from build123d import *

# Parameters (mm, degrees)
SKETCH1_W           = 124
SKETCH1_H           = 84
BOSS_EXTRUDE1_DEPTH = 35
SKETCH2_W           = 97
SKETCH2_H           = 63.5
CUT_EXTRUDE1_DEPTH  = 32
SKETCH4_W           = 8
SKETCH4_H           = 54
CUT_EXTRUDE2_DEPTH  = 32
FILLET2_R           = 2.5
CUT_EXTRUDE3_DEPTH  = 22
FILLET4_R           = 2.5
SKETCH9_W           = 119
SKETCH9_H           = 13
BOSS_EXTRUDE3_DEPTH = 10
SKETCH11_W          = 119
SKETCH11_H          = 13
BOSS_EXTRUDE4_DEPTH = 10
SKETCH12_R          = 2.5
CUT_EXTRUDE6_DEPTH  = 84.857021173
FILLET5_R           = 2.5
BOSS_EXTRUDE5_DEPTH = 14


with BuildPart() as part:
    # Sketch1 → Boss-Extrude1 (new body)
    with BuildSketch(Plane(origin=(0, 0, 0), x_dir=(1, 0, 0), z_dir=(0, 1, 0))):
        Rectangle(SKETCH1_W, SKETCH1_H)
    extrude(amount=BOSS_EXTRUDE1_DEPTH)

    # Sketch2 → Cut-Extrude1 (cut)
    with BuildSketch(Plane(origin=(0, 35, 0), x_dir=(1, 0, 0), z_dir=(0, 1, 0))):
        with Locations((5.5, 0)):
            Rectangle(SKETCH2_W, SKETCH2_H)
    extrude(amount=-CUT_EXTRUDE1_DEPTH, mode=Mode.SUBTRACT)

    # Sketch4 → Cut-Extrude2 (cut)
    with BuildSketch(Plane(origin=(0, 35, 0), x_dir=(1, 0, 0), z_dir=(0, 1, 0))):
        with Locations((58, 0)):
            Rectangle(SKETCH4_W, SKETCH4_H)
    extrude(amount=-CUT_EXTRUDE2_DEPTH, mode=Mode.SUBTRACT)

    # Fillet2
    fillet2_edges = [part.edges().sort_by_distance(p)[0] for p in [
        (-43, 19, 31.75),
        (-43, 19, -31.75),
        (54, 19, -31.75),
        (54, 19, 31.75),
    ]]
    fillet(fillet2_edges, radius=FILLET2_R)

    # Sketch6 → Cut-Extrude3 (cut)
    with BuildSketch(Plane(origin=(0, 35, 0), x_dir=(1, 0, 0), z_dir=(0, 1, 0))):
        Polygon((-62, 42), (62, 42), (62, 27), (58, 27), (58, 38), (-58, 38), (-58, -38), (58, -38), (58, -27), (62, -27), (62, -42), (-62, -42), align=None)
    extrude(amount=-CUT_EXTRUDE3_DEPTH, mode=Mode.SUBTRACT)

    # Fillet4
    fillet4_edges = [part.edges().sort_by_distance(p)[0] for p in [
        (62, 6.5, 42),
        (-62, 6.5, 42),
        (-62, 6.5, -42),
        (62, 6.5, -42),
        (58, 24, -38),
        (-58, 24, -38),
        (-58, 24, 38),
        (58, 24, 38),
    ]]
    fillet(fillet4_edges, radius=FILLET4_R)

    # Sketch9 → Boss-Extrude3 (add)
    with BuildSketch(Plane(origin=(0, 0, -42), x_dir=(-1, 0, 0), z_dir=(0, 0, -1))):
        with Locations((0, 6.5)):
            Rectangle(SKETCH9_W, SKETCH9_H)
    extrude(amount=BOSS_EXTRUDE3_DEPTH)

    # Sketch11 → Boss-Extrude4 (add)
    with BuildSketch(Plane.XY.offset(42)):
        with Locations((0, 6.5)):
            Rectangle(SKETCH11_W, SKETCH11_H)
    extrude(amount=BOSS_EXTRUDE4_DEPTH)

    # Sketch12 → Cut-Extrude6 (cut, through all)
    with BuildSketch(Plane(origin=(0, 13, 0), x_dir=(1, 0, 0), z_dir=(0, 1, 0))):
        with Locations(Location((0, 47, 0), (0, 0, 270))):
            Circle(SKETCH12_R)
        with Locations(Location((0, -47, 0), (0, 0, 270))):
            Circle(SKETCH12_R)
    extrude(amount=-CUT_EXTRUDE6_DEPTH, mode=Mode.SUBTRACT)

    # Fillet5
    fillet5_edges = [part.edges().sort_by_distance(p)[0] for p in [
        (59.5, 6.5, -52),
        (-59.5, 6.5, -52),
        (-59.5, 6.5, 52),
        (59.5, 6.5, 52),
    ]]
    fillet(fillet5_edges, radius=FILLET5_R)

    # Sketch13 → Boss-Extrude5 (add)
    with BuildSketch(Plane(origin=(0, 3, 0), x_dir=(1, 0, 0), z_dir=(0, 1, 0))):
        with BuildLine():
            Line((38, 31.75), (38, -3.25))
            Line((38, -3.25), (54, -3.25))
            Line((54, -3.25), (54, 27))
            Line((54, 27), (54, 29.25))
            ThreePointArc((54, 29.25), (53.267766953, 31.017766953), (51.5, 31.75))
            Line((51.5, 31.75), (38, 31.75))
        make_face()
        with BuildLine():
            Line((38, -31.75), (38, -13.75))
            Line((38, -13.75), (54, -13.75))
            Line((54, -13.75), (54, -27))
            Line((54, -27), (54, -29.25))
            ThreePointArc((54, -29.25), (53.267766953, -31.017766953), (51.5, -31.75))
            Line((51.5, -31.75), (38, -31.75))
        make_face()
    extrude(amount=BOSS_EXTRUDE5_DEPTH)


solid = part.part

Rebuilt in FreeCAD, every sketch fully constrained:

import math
import FreeCAD as App
import Part
import Sketcher

V = App.Vector


def edges_at(feature, points):
    """Names of the edges that pass closest to the given points."""
    edges = feature.Shape.Edges
    near = lambda p: min(range(len(edges)), key=lambda i: edges[i].distToShape(Part.Vertex(*p))[0])
    return sorted({f"Edge{near(p) + 1}" for p in points})


def add_polygon(sketch, points):
    """Adds a closed chain of lines whose ends are joined by coincident constraints."""
    first, n = sketch.GeometryCount, len(points)
    for a, b in zip(points, points[1:] + points[:1]):
        sketch.addGeometry(Part.LineSegment(App.Vector(*a, 0), App.Vector(*b, 0)), False)
    for i in range(n):
        sketch.addConstraint(Sketcher.Constraint("Coincident", first + i, 2, first + (i + 1) % n, 1))

doc = App.newDocument("Part")
params = doc.addObject("Spreadsheet::Sheet", "Params")
for row, (alias, value) in enumerate([
    ("sketch1_width", "124 mm"),
    ("sketch1_height", "84 mm"),
    ("pad1_length", "35 mm"),
    ("sketch2_width", "97 mm"),
    ("sketch2_height", "63.5 mm"),
    ("pocket1_length", "32 mm"),
    ("sketch3_width", "8 mm"),
    ("sketch3_height", "54 mm"),
    ("pocket2_length", "32 mm"),
    ("fillet_radius", "2.5 mm"),
    ("sketch4_width", "124 mm"),
    ("sketch4_width2", "4 mm"),
    ("sketch4_height", "84 mm"),
    ("sketch4_height2", "15 mm"),
    ("sketch4_height3", "11 mm"),
    ("pocket3_length", "22 mm"),
    ("fillet2_radius", "2.5 mm"),
    ("sketch5_width", "119 mm"),
    ("sketch5_height", "13 mm"),
    ("pad2_length", "10 mm"),
    ("sketch6_width", "119 mm"),
    ("sketch6_height", "13 mm"),
    ("pad3_length", "10 mm"),
    ("sketch7_diameter", "5 mm"),
    ("fillet3_radius", "2.5 mm"),
    ("sketch8_radius", "2.5 mm"),
    ("sketch8_width", "16 mm"),
    ("sketch8_height", "35 mm"),
    ("sketch8_height2", "18 mm"),
    ("pad4_length", "14 mm"),
], start=1):
    params.set(f"A{row}", alias)
    params.set(f"B{row}", "=" + value)
    params.setAlias(f"B{row}", alias)

body = doc.addObject("PartDesign::Body", "Body")

# Sketch on XZ plane
sketch1 = doc.addObject("Sketcher::SketchObject", "Sketch")
body.addObject(sketch1)
sketch1.AttachmentSupport = (doc.XZ_Plane, [""])
sketch1.MapMode = "FlatFace"
add_polygon(sketch1, [(-62, -42), (-62, 42), (62, 42), (62, -42)])  # lines 0-3
sketch1.addConstraint([
    Sketcher.Constraint("Vertical", 0),
    Sketcher.Constraint("Horizontal", 1),
    Sketcher.Constraint("Vertical", 2),
    Sketcher.Constraint("Horizontal", 3),
    Sketcher.Constraint("Symmetric", 0, 2, 2, 2, -1, 1),
    Sketcher.Constraint("DistanceX", 1, 1, 1, 2, 124.0),
    Sketcher.Constraint("DistanceY", 0, 1, 0, 2, 84.0),
])
sketch1.setExpression("Constraints[9]", "Params.sketch1_width")
sketch1.setExpression("Constraints[10]", "Params.sketch1_height")
pad1 = doc.addObject("PartDesign::Pad", "Pad")
body.addObject(pad1)
pad1.Profile = sketch1
pad1.setExpression("Length", "Params.pad1_length")
pad1.Reversed = True

# Sketch on XZ plane
sketch2 = doc.addObject("Sketcher::SketchObject", "Sketch001")
body.addObject(sketch2)
sketch2.AttachmentSupport = (doc.XZ_Plane, [""])
sketch2.MapMode = "FlatFace"
sketch2.AttachmentOffset = App.Placement(V(0, 0, -35), App.Rotation())
add_polygon(sketch2, [(-43, -31.75), (-43, 31.75), (54, 31.75), (54, -31.75)])  # lines 0-3
sketch2.addConstraint([
    Sketcher.Constraint("Vertical", 0),
    Sketcher.Constraint("Horizontal", 1),
    Sketcher.Constraint("Vertical", 2),
    Sketcher.Constraint("Horizontal", 3),
    Sketcher.Constraint("DistanceX", 1, 1, 1, 2, 97.0),
    Sketcher.Constraint("DistanceY", 0, 1, 0, 2, 63.5),
    Sketcher.Constraint("DistanceX", 0, 2, -1, 1, 43.0),
    Sketcher.Constraint("DistanceY", -1, 1, 0, 2, 31.75),
])
sketch2.setExpression("Constraints[8]", "Params.sketch2_width")
sketch2.setExpression("Constraints[9]", "Params.sketch2_height")
pocket1 = doc.addObject("PartDesign::Pocket", "Pocket")
body.addObject(pocket1)
pocket1.Profile = sketch2
pocket1.setExpression("Length", "Params.pocket1_length")
pocket1.Reversed = True

# Sketch on XZ plane
sketch3 = doc.addObject("Sketcher::SketchObject", "Sketch002")
body.addObject(sketch3)
sketch3.AttachmentSupport = (doc.XZ_Plane, [""])
sketch3.MapMode = "FlatFace"
sketch3.AttachmentOffset = App.Placement(V(0, 0, -35), App.Rotation())
add_polygon(sketch3, [(54, -27), (54, 27), (62, 27), (62, -27)])  # lines 0-3
sketch3.addConstraint([
    Sketcher.Constraint("Vertical", 0),
    Sketcher.Constraint("Horizontal", 1),
    Sketcher.Constraint("Vertical", 2),
    Sketcher.Constraint("Horizontal", 3),
    Sketcher.Constraint("DistanceX", 1, 1, 1, 2, 8.0),
    Sketcher.Constraint("DistanceY", 0, 1, 0, 2, 54.0),
    Sketcher.Constraint("DistanceX", -1, 1, 0, 2, 54.0),
    Sketcher.Constraint("DistanceY", -1, 1, 0, 2, 27.0),
])
sketch3.setExpression("Constraints[8]", "Params.sketch3_width")
sketch3.setExpression("Constraints[9]", "Params.sketch3_height")
pocket2 = doc.addObject("PartDesign::Pocket", "Pocket001")
body.addObject(pocket2)
pocket2.Profile = sketch3
pocket2.setExpression("Length", "Params.pocket2_length")
pocket2.Reversed = True
doc.recompute()

fillet = doc.addObject("PartDesign::Fillet", "Fillet")
body.addObject(fillet)
fillet.Base = (pocket2, edges_at(pocket2, [
    (-43, 19, 31.75),
    (-43, 19, -31.75),
    (54, 19, -31.75),
    (54, 19, 31.75),
]))
fillet.setExpression("Radius", "Params.fillet_radius")

# Sketch on XZ plane
sketch4 = doc.addObject("Sketcher::SketchObject", "Sketch003")
body.addObject(sketch4)
sketch4.AttachmentSupport = (doc.XZ_Plane, [""])
sketch4.MapMode = "FlatFace"
sketch4.AttachmentOffset = App.Placement(V(0, 0, -35), App.Rotation())
add_polygon(sketch4, [(62, -42), (-62, -42), (-62, 42), (62, 42), (62, 27), (58, 27), (58, 38), (-58, 38), (-58, -38), (58, -38), (58, -27), (62, -27)])  # lines 0-11
sketch4.addConstraint([
    Sketcher.Constraint("Horizontal", 0),
    Sketcher.Constraint("Vertical", 1),
    Sketcher.Constraint("Horizontal", 2),
    Sketcher.Constraint("Vertical", 3),
    Sketcher.Constraint("Horizontal", 4),
    Sketcher.Constraint("Vertical", 5),
    Sketcher.Constraint("Horizontal", 6),
    Sketcher.Constraint("Vertical", 7),
    Sketcher.Constraint("Horizontal", 8),
    Sketcher.Constraint("Vertical", 9),
    Sketcher.Constraint("Horizontal", 10),
    Sketcher.Constraint("Vertical", 11),
    Sketcher.Constraint("Symmetric", 0, 2, 2, 2, -1, 1),
    Sketcher.Constraint("Symmetric", 5, 2, 7, 2, -1, 1),
    Sketcher.Constraint("Symmetric", 4, 2, 9, 2, -1),
    Sketcher.Constraint("Vertical", 3, 2, 10, 2),
    Sketcher.Constraint("DistanceX", 0, 2, 0, 1, 124.0),
    Sketcher.Constraint("DistanceX", 4, 2, 4, 1, 4.0),
    Sketcher.Constraint("DistanceY", 1, 1, 1, 2, 84.0),
    Sketcher.Constraint("DistanceY", 3, 2, 3, 1, 15.0),
    Sketcher.Constraint("DistanceY", 5, 1, 5, 2, 11.0),
])
sketch4.setExpression("Constraints[28]", "Params.sketch4_width")
sketch4.setExpression("Constraints[29]", "Params.sketch4_width2")
sketch4.setExpression("Constraints[30]", "Params.sketch4_height")
sketch4.setExpression("Constraints[31]", "Params.sketch4_height2")
sketch4.setExpression("Constraints[32]", "Params.sketch4_height3")
pocket3 = doc.addObject("PartDesign::Pocket", "Pocket002")
body.addObject(pocket3)
pocket3.Profile = sketch4
pocket3.setExpression("Length", "Params.pocket3_length")
pocket3.Reversed = True
doc.recompute()

fillet2 = doc.addObject("PartDesign::Fillet", "Fillet001")
body.addObject(fillet2)
fillet2.Base = (pocket3, edges_at(pocket3, [
    (62, 6.5, 42),
    (-62, 6.5, 42),
    (-62, 6.5, -42),
    (62, 6.5, -42),
    (58, 24, -38),
    (-58, 24, -38),
    (-58, 24, 38),
    (58, 24, 38),
]))
fillet2.setExpression("Radius", "Params.fillet2_radius")

# Sketch on XY plane
sketch5 = doc.addObject("Sketcher::SketchObject", "Sketch004")
body.addObject(sketch5)
sketch5.AttachmentSupport = (doc.XY_Plane, [""])
sketch5.MapMode = "FlatFace"
sketch5.AttachmentOffset = App.Placement(V(0, 0, -42), App.Rotation())
add_polygon(sketch5, [(59.5, 13), (59.5, 0), (-59.5, 0), (-59.5, 13)])  # lines 0-3
sketch5.addConstraint([
    Sketcher.Constraint("Vertical", 0),
    Sketcher.Constraint("Horizontal", 1),
    Sketcher.Constraint("Vertical", 2),
    Sketcher.Constraint("Horizontal", 3),
    Sketcher.Constraint("Symmetric", 0, 2, 1, 2, -1, 1),
    Sketcher.Constraint("DistanceX", 1, 2, 1, 1, 119.0),
    Sketcher.Constraint("DistanceY", 0, 2, 0, 1, 13.0),
])
sketch5.setExpression("Constraints[9]", "Params.sketch5_width")
sketch5.setExpression("Constraints[10]", "Params.sketch5_height")
pad2 = doc.addObject("PartDesign::Pad", "Pad001")
body.addObject(pad2)
pad2.Profile = sketch5
pad2.setExpression("Length", "Params.pad2_length")
pad2.Reversed = True

# Sketch on XY plane
sketch6 = doc.addObject("Sketcher::SketchObject", "Sketch005")
body.addObject(sketch6)
sketch6.AttachmentSupport = (doc.XY_Plane, [""])
sketch6.MapMode = "FlatFace"
sketch6.AttachmentOffset = App.Placement(V(0, 0, 42), App.Rotation())
add_polygon(sketch6, [(-59.5, 13), (-59.5, 0), (59.5, 0), (59.5, 13)])  # lines 0-3
sketch6.addConstraint([
    Sketcher.Constraint("Vertical", 0),
    Sketcher.Constraint("Horizontal", 1),
    Sketcher.Constraint("Vertical", 2),
    Sketcher.Constraint("Horizontal", 3),
    Sketcher.Constraint("Symmetric", 0, 2, 1, 2, -1, 1),
    Sketcher.Constraint("DistanceX", 1, 1, 1, 2, 119.0),
    Sketcher.Constraint("DistanceY", 0, 2, 0, 1, 13.0),
])
sketch6.setExpression("Constraints[9]", "Params.sketch6_width")
sketch6.setExpression("Constraints[10]", "Params.sketch6_height")
pad3 = doc.addObject("PartDesign::Pad", "Pad002")
body.addObject(pad3)
pad3.Profile = sketch6
pad3.setExpression("Length", "Params.pad3_length")

# Sketch on XZ plane
sketch7 = doc.addObject("Sketcher::SketchObject", "Sketch006")
body.addObject(sketch7)
sketch7.AttachmentSupport = (doc.XZ_Plane, [""])
sketch7.MapMode = "FlatFace"
sketch7.AttachmentOffset = App.Placement(V(0, 0, -13), App.Rotation())
sketch7.addGeometry([
    Part.Circle(V(0, -47, 0), V(0, 0, 1), 2.5),
    Part.Circle(V(0, 47, 0), V(0, 0, 1), 2.5),
], False)
sketch7.addConstraint([
    Sketcher.Constraint("Equal", 0, 1),
    Sketcher.Constraint("Symmetric", 0, 3, 1, 3, -1, 1),
    Sketcher.Constraint("PointOnObject", 0, 3, -2),
    Sketcher.Constraint("Diameter", 0, 5.0),
    Sketcher.Constraint("DistanceY", 0, 3, -1, 1, 47.0),
])
sketch7.setExpression("Constraints[3]", "Params.sketch7_diameter")
pocket4 = doc.addObject("PartDesign::Pocket", "Pocket003")
body.addObject(pocket4)
pocket4.Profile = sketch7
pocket4.Type = "ThroughAll"
pocket4.Reversed = True
doc.recompute()

fillet3 = doc.addObject("PartDesign::Fillet", "Fillet002")
body.addObject(fillet3)
fillet3.Base = (pocket4, edges_at(pocket4, [
    (59.5, 6.5, -52),
    (-59.5, 6.5, -52),
    (-59.5, 6.5, 52),
    (59.5, 6.5, 52),
]))
fillet3.setExpression("Radius", "Params.fillet3_radius")

# Sketch on XZ plane
sketch8 = doc.addObject("Sketcher::SketchObject", "Sketch007")
body.addObject(sketch8)
sketch8.AttachmentSupport = (doc.XZ_Plane, [""])
sketch8.MapMode = "FlatFace"
sketch8.AttachmentOffset = App.Placement(V(0, 0, -3), App.Rotation())
sketch8.addGeometry([
    Part.LineSegment(V(38, -31.75, 0), V(38, 3.25, 0)),  # 0
    Part.LineSegment(V(38, 3.25, 0), V(54, 3.25, 0)),  # 1
    Part.LineSegment(V(54, 3.25, 0), V(54, -29.25, 0)),  # 2
    Part.ArcOfCircle(Part.Circle(V(51.5, -29.25, 0), V(0, 0, 1), 2.5), math.radians(-90), math.radians(0)),  # 3
    Part.LineSegment(V(51.5, -31.75, 0), V(38, -31.75, 0)),  # 4
    Part.LineSegment(V(38, 13.75, 0), V(38, 31.75, 0)),  # 5
    Part.LineSegment(V(38, 31.75, 0), V(51.5, 31.75, 0)),  # 6
    Part.ArcOfCircle(Part.Circle(V(51.5, 29.25, 0), V(0, 0, 1), 2.5), math.radians(0), math.radians(90)),  # 7
    Part.LineSegment(V(54, 29.25, 0), V(54, 13.75, 0)),  # 8
    Part.LineSegment(V(54, 13.75, 0), V(38, 13.75, 0)),  # 9
], False)
sketch8.addConstraint([
    Sketcher.Constraint("Coincident", 0, 2, 1, 1),
    Sketcher.Constraint("Coincident", 1, 2, 2, 1),
    Sketcher.Constraint("Tangent", 2, 2, 3, 2),
    Sketcher.Constraint("Tangent", 3, 1, 4, 1),
    Sketcher.Constraint("Coincident", 4, 2, 0, 1),
    Sketcher.Constraint("Coincident", 5, 2, 6, 1),
    Sketcher.Constraint("Tangent", 6, 2, 7, 2),
    Sketcher.Constraint("Tangent", 7, 1, 8, 1),
    Sketcher.Constraint("Coincident", 8, 2, 9, 1),
    Sketcher.Constraint("Coincident", 9, 2, 5, 1),
    Sketcher.Constraint("Vertical", 0),
    Sketcher.Constraint("Horizontal", 1),
    Sketcher.Constraint("Vertical", 2),
    Sketcher.Constraint("Horizontal", 4),
    Sketcher.Constraint("Vertical", 5),
    Sketcher.Constraint("Horizontal", 6),
    Sketcher.Constraint("Vertical", 8),
    Sketcher.Constraint("Horizontal", 9),
    Sketcher.Constraint("Equal", 3, 7),
    Sketcher.Constraint("Symmetric", 3, 3, 7, 3, -1),
    Sketcher.Constraint("Vertical", 4, 2, 5, 2),
    Sketcher.Constraint("Radius", 3, 2.5),
    Sketcher.Constraint("DistanceX", 1, 1, 1, 2, 16.0),
    Sketcher.Constraint("DistanceY", 0, 1, 0, 2, 35.0),
    Sketcher.Constraint("DistanceY", 5, 1, 5, 2, 18.0),
    Sketcher.Constraint("DistanceX", -1, 1, 0, 2, 38.0),
    Sketcher.Constraint("DistanceY", 0, 2, 7, 3, 26.0),
])
sketch8.setExpression("Constraints[21]", "Params.sketch8_radius")
sketch8.setExpression("Constraints[22]", "Params.sketch8_width")
sketch8.setExpression("Constraints[23]", "Params.sketch8_height")
sketch8.setExpression("Constraints[24]", "Params.sketch8_height2")
pad4 = doc.addObject("PartDesign::Pad", "Pad003")
body.addObject(pad4)
pad4.Profile = sketch8
pad4.setExpression("Length", "Params.pad4_length")
pad4.Reversed = True

doc.recompute()
